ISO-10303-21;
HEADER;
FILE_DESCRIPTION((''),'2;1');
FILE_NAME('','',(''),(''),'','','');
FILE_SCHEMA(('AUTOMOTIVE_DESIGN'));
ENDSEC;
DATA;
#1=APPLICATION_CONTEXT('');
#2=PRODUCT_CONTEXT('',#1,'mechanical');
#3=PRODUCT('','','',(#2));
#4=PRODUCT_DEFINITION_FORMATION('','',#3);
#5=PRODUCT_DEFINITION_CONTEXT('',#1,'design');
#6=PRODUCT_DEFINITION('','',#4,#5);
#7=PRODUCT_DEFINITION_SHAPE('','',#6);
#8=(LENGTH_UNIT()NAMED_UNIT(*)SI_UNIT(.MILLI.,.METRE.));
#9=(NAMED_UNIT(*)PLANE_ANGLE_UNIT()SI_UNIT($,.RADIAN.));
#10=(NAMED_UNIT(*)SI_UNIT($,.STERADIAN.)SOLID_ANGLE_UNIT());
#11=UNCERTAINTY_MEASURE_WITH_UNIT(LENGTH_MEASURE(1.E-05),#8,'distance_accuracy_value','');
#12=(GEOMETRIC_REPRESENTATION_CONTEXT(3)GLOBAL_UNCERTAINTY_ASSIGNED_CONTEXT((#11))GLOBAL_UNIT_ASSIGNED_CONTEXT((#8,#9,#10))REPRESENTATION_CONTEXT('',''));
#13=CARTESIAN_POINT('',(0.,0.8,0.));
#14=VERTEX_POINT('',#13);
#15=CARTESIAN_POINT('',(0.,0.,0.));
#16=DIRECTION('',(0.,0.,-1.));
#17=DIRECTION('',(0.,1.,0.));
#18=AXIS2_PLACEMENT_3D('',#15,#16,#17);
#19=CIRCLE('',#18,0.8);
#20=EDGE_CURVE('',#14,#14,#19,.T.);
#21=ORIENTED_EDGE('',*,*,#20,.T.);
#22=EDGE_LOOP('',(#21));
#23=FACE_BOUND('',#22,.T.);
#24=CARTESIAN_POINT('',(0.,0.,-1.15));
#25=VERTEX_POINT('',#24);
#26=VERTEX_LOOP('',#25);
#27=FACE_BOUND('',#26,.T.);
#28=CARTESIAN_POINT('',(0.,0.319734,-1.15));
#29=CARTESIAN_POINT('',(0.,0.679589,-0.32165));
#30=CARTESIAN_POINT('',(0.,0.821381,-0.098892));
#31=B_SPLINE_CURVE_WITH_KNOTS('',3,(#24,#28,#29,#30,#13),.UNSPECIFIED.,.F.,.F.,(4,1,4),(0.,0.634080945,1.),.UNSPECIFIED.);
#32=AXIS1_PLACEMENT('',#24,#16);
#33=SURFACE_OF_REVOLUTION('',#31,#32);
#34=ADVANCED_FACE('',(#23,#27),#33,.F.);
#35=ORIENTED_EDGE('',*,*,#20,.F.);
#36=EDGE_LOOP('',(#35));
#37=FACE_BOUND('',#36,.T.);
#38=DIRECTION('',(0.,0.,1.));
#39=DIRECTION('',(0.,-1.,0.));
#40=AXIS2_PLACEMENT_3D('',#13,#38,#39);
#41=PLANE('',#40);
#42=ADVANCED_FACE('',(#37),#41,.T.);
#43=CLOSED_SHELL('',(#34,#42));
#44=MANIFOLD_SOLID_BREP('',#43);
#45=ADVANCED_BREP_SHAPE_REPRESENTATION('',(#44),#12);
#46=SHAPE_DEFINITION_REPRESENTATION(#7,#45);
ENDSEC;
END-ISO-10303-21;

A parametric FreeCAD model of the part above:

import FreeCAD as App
import Part
import Sketcher
from FreeCAD import Vector

doc = App.newDocument("Part")
body = doc.addObject("PartDesign::Body", "Body")

# Sketch on YZ plane
sketch1 = doc.addObject("Sketcher::SketchObject", "Sketch")
body.addObject(sketch1)
sketch1.AttachmentSupport = (doc.YZ_Plane, [""])
sketch1.MapMode = "FlatFace"
sketch1.addGeometry([
    Part.LineSegment(Vector(0.8, 0, 0), Vector(0, 0, 0)),
    Part.LineSegment(Vector(0, 0, 0), Vector(0, -1.15, 0)),
    Part.BSplineCurve([Vector(0.8, 0, 0), Vector(0.821381, -0.098892, 0), Vector(0.679589, -0.32165, 0), Vector(0.319734, -1.15, 0), Vector(0, -1.15, 0)], [4, 1, 4], [0, 0.365919055, 1], False, 3, [1, 1, 1, 1, 1], False),
], False)
sketch1.addConstraint([
    Sketcher.Constraint("Block", 2),
    Sketcher.Constraint("Coincident", 0, 2, 1, 1),
    Sketcher.Constraint("Coincident", 1, 2, 2, 2),
    Sketcher.Constraint("Coincident", 2, 1, 0, 1),
    Sketcher.Constraint("Horizontal", 0),
    Sketcher.Constraint("Vertical", 1),
])
revolution = doc.addObject("PartDesign::Revolution", "Revolution")
body.addObject(revolution)
revolution.Profile = sketch1
revolution.ReferenceAxis = (sketch1, ["V_Axis"])
revolution.Angle = 360

doc.recompute()
